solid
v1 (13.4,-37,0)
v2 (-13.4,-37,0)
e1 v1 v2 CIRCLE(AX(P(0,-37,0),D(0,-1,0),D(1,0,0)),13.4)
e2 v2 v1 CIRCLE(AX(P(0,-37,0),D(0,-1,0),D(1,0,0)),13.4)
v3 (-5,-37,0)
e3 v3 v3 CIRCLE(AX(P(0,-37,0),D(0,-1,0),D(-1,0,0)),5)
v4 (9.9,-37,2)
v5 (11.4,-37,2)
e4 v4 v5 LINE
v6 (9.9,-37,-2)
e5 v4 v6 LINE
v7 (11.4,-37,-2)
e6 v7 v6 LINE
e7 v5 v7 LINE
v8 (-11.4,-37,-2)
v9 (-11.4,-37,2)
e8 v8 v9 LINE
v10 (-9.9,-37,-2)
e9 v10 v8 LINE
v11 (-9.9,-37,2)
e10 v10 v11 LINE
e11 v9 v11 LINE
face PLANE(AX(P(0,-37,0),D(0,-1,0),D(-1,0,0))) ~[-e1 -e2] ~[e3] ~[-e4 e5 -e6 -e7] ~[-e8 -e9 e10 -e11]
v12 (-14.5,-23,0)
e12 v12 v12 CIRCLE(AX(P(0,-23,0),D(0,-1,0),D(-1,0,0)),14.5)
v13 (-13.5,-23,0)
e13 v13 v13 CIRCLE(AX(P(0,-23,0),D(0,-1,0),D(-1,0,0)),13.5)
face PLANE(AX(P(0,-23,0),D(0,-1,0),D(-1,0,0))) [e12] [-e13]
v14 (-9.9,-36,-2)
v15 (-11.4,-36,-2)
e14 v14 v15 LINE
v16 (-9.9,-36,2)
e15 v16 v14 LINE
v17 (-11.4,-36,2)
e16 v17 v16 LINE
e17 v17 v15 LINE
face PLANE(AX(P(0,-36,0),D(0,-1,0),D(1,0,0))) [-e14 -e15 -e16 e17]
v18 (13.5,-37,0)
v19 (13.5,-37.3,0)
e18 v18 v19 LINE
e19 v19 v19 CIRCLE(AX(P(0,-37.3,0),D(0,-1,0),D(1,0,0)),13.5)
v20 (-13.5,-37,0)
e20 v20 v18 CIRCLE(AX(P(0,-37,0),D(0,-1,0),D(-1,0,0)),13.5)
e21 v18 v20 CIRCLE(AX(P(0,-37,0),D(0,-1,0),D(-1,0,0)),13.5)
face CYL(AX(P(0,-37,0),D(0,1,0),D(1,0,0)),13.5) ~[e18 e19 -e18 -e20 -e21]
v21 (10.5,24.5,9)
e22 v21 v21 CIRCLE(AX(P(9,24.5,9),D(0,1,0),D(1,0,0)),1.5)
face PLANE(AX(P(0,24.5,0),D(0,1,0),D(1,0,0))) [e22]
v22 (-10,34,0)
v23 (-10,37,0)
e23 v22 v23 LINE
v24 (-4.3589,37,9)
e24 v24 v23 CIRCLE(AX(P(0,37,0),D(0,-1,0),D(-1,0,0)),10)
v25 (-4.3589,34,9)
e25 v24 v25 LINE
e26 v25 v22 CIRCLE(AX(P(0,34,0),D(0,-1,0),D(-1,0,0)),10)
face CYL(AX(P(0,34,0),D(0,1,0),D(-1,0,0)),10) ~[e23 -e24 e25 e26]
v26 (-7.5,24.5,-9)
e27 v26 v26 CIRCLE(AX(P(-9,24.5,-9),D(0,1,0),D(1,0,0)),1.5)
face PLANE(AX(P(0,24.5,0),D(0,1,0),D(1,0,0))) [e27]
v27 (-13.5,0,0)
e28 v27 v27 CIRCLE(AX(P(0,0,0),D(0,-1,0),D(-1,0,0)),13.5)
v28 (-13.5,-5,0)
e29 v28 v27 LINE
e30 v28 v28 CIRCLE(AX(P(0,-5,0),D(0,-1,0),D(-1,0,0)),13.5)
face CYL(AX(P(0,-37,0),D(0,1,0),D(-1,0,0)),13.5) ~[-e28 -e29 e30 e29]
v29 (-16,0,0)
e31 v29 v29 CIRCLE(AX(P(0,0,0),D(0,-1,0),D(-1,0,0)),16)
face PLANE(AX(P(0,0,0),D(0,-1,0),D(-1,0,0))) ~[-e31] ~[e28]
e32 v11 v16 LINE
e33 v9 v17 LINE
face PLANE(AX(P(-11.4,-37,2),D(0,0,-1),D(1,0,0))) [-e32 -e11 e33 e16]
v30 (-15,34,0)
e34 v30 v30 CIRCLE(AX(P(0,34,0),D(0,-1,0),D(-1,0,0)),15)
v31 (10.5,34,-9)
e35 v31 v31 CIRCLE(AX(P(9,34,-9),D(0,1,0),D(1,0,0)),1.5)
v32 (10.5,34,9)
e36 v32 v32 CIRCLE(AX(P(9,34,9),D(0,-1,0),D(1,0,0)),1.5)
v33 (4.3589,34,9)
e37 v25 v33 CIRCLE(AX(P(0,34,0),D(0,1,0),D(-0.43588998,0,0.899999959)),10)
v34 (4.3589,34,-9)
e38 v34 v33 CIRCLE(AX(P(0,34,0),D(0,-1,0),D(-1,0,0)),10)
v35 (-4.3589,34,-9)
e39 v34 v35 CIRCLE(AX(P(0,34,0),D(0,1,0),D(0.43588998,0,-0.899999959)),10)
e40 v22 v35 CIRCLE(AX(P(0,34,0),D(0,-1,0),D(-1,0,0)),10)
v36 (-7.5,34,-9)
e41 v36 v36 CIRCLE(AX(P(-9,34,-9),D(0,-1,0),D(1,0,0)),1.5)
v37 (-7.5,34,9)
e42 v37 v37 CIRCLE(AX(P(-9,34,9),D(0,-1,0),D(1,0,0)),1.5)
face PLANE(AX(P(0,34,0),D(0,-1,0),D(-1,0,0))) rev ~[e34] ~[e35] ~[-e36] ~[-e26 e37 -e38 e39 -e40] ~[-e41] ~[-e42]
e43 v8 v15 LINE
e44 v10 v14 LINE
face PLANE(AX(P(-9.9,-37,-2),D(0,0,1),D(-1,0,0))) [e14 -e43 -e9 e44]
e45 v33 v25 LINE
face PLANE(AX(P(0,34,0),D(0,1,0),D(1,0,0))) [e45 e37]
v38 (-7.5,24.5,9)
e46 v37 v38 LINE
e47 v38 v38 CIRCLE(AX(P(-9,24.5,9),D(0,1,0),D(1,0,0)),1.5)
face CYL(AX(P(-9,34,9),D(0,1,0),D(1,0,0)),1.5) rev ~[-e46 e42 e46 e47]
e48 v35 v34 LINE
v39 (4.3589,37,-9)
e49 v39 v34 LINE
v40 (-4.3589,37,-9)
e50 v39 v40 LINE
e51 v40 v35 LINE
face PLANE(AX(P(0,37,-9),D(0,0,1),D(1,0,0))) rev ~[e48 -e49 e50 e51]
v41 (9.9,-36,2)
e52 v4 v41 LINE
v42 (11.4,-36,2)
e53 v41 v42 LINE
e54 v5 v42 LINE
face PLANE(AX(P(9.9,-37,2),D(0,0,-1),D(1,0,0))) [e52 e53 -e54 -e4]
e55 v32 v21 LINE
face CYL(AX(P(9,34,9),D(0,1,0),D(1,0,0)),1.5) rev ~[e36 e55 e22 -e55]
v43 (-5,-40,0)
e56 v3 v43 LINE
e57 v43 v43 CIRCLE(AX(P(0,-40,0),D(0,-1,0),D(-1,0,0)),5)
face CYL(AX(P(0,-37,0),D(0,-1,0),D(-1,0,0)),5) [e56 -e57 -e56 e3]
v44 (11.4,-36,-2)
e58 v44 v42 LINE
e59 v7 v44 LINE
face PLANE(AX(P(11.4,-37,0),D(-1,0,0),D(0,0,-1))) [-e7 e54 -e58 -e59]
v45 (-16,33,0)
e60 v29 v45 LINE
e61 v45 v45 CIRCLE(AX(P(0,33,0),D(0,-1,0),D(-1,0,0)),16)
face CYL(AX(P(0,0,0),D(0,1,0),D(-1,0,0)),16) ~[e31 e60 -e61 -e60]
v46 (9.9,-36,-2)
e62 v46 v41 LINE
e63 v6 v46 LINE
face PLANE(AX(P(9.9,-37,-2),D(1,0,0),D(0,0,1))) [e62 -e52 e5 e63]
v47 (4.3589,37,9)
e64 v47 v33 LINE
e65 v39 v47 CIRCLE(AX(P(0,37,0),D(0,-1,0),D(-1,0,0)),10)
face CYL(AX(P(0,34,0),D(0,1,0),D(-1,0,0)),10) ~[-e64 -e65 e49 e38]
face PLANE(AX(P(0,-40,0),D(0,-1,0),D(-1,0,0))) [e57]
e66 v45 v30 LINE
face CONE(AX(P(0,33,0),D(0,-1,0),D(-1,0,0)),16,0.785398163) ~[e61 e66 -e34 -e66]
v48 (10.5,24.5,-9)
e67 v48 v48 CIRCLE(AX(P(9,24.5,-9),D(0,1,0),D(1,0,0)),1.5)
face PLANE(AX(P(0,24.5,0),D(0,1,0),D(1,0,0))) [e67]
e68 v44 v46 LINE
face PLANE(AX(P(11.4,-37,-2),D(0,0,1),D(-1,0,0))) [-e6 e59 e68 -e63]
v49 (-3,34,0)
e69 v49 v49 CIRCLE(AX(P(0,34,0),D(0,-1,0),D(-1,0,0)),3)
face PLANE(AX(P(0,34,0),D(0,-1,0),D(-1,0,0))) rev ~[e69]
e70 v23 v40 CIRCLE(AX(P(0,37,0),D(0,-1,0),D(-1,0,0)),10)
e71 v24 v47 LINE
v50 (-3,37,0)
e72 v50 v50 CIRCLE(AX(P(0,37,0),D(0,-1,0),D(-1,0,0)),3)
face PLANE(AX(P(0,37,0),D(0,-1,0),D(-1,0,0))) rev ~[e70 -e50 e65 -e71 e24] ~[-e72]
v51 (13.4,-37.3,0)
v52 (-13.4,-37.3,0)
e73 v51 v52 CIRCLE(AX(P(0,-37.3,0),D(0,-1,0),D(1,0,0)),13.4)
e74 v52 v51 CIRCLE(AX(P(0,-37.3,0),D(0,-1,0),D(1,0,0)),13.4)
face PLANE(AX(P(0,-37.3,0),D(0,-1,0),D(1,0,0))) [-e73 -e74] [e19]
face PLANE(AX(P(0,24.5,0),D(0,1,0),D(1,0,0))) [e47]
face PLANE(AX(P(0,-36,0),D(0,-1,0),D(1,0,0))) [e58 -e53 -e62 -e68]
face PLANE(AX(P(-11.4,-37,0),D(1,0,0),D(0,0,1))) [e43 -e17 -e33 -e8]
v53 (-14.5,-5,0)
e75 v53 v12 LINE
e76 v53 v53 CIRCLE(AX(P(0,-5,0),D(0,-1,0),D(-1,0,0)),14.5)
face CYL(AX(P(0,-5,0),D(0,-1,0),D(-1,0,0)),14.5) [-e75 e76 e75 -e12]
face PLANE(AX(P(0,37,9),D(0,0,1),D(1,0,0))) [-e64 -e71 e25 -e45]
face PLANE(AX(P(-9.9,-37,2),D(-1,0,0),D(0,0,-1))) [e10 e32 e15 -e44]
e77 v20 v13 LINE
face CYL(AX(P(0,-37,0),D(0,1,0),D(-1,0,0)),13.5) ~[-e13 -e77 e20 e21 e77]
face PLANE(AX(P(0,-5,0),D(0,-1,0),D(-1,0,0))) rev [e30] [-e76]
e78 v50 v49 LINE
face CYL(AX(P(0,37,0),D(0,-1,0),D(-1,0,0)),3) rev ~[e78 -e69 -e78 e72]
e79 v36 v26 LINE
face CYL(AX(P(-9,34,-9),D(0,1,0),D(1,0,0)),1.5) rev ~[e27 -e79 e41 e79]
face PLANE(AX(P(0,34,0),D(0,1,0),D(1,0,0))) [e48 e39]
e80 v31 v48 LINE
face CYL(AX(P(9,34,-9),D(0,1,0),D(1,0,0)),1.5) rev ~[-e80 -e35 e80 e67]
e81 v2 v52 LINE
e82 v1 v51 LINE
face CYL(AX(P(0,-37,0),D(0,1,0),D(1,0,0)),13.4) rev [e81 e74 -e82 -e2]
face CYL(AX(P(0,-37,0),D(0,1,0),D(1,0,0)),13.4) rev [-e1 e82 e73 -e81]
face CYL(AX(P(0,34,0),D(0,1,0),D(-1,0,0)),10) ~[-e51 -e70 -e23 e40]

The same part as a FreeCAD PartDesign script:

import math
import FreeCAD as App
import Part
import Sketcher
Q = App.Units.Quantity


def edges_at(feature, points):
    """Names of the edges that pass closest to the given points."""
    edges = feature.Shape.Edges
    near = lambda p: min(range(len(edges)), key=lambda i: edges[i].distToShape(Part.Vertex(*p))[0])
    return sorted({f"Edge{near(p) + 1}" for p in points})

doc = App.newDocument("Part")
body = doc.addObject("PartDesign::Body", "Body")

# Sketch on XY plane
sketch1 = body.newObject("Sketcher::SketchObject", "Sketch")
sketch1.AttachmentSupport = (doc.getObject("XY_Plane"), [""])
sketch1.MapMode = "FlatFace"
sketch1.addGeometry([
    Part.LineSegment(App.Vector(0, 34, 0), App.Vector(-3, 34, 0)),  # 0
    Part.LineSegment(App.Vector(-3, 34, 0), App.Vector(-3, 37, 0)),  # 1
    Part.LineSegment(App.Vector(-3, 37, 0), App.Vector(-10, 37, 0)),  # 2
    Part.LineSegment(App.Vector(-10, 37, 0), App.Vector(-10, 34, 0)),  # 3
    Part.LineSegment(App.Vector(-10, 34, 0), App.Vector(-16, 34, 0)),  # 4
    Part.LineSegment(App.Vector(-16, 34, 0), App.Vector(-16, 0, 0)),  # 5
    Part.LineSegment(App.Vector(-16, 0, 0), App.Vector(-13.5, 0, 0)),  # 6
    Part.LineSegment(App.Vector(-13.5, 0, 0), App.Vector(-13.5, -5, 0)),  # 7
    Part.LineSegment(App.Vector(-13.5, -5, 0), App.Vector(-14.5, -5, 0)),  # 8
    Part.LineSegment(App.Vector(-14.5, -5, 0), App.Vector(-14.5, -23, 0)),  # 9
    Part.LineSegment(App.Vector(-14.5, -23, 0), App.Vector(-13.5, -23, 0)),  # 10
    Part.LineSegment(App.Vector(-13.5, -23, 0), App.Vector(-13.5, -37, 0)),  # 11
    Part.LineSegment(App.Vector(-13.5, -37, 0), App.Vector(-5, -37, 0)),  # 12
    Part.LineSegment(App.Vector(-5, -37, 0), App.Vector(-5, -40, 0)),  # 13
    Part.LineSegment(App.Vector(-5, -40, 0), App.Vector(0, -40, 0)),  # 14
    Part.LineSegment(App.Vector(0, -40, 0), App.Vector(0, 34, 0)),  # 15
], False)
sketch1.addConstraint([
    Sketcher.Constraint("Coincident", 0, 2, 1, 1),
    Sketcher.Constraint("Coincident", 1, 2, 2, 1),
    Sketcher.Constraint("Coincident", 2, 2, 3, 1),
    Sketcher.Constraint("Coincident", 3, 2, 4, 1),
    Sketcher.Constraint("Coincident", 4, 2, 5, 1),
    Sketcher.Constraint("Coincident", 5, 2, 6, 1),
    Sketcher.Constraint("Coincident", 6, 2, 7, 1),
    Sketcher.Constraint("Coincident", 7, 2, 8, 1),
    Sketcher.Constraint("Coincident", 8, 2, 9, 1),
    Sketcher.Constraint("Coincident", 9, 2, 10, 1),
    Sketcher.Constraint("Coincident", 10, 2, 11, 1),
    Sketcher.Constraint("Coincident", 11, 2, 12, 1),
    Sketcher.Constraint("Coincident", 12, 2, 13, 1),
    Sketcher.Constraint("Coincident", 13, 2, 14, 1),
    Sketcher.Constraint("Coincident", 14, 2, 15, 1),
    Sketcher.Constraint("Coincident", 15, 2, 0, 1),
    Sketcher.Constraint("Horizontal", 0),
    Sketcher.Constraint("Vertical", 1),
    Sketcher.Constraint("Horizontal", 2),
    Sketcher.Constraint("Vertical", 3),
    Sketcher.Constraint("Horizontal", 4),
    Sketcher.Constraint("Vertical", 5),
    Sketcher.Constraint("Horizontal", 6),
    Sketcher.Constraint("Vertical", 7),
    Sketcher.Constraint("Horizontal", 8),
    Sketcher.Constraint("Vertical", 9),
    Sketcher.Constraint("Horizontal", 10),
    Sketcher.Constraint("Vertical", 11),
    Sketcher.Constraint("Horizontal", 12),
    Sketcher.Constraint("Vertical", 13),
    Sketcher.Constraint("Horizontal", 14),
    Sketcher.Constraint("Vertical", 15),
    Sketcher.Constraint("PointOnObject", 5, 2, -1),
    Sketcher.Constraint("PointOnObject", 14, 2, -2),
    Sketcher.Constraint("Horizontal", 0, 2, 3, 2),
    Sketcher.Constraint("Vertical", 7, 2, 10, 2),
    Sketcher.Constraint("Equal", 0, 1),
    Sketcher.Constraint("Equal", 14, 7),
    Sketcher.Constraint("Equal", 3, 13),
    Sketcher.Constraint("DistanceX", 0, 2, 0, 1, Q("3 mm")),
    Sketcher.Constraint("DistanceX", 8, 2, 8, 1, Q("1 mm")),
    Sketcher.Constraint("DistanceX", 14, 1, 14, 2, Q("5 mm")),
    Sketcher.Constraint("DistanceY", 5, 2, 5, 1, Q("34 mm")),
    Sketcher.Constraint("DistanceY", 11, 2, 11, 1, Q("14 mm")),
    Sketcher.Constraint("DistanceX", 2, 2, -1, 1, Q("10 mm")),
    Sketcher.Constraint("DistanceX", 4, 2, -1, 1, Q("16 mm")),
    Sketcher.Constraint("DistanceY", 11, 2, -1, 1, Q("37 mm")),
    Sketcher.Constraint("DistanceX", 6, 2, -1, 1, Q("13.5 mm")),
])
revolution = body.newObject("PartDesign::Revolution", "Revolution")
revolution.Profile = sketch1
revolution.ReferenceAxis = (sketch1, ["V_Axis"])
revolution.Angle = 360
doc.recompute()

chamfer = body.newObject("PartDesign::Chamfer", "Chamfer")
chamfer.Base = (revolution, edges_at(revolution, [(16, 34, 0)]))
chamfer.Size = 1

# Sketch on XZ plane
sketch2 = body.newObject("Sketcher::SketchObject", "Sketch001")
sketch2.AttachmentSupport = (doc.getObject("XZ_Plane"), [""])
sketch2.MapMode = "FlatFace"
sketch2.AttachmentOffset = App.Placement(App.Vector(0, 0, 37), App.Rotation())
sketch2.addGeometry([
    Part.Circle(App.Vector(0, 0, 0), App.Vector(0, 0, 1), 14),
    Part.Circle(App.Vector(0, 0, 0), App.Vector(0, 0, 1), 13),
], False)
sketch2.addConstraint([
    Sketcher.Constraint("Coincident", 0, 3, -1, 1),
    Sketcher.Constraint("Coincident", 1, 3, -1, 1),
    Sketcher.Constraint("Diameter", 0, Q("27 mm")),
    Sketcher.Constraint("Diameter", 1, Q("26.8 mm")),
])
pad1 = body.newObject("PartDesign::Pad", "Pad")
pad1.Profile = sketch2
pad1.Length = 0.3

# Sketch on XZ plane
sketch3 = body.newObject("Sketcher::SketchObject", "Sketch002")
sketch3.AttachmentSupport = (doc.getObject("XZ_Plane"), [""])
sketch3.MapMode = "FlatFace"
sketch3.AttachmentOffset = App.Placement(App.Vector(0, 0, 37), App.Rotation())
sketch3.addGeometry([
    Part.LineSegment(App.Vector(11.4, -2, 0), App.Vector(11.4, 2, 0)),  # 0
    Part.LineSegment(App.Vector(11.4, 2, 0), App.Vector(9.9, 2, 0)),  # 1
    Part.LineSegment(App.Vector(9.9, 2, 0), App.Vector(9.9, -2, 0)),  # 2
    Part.LineSegment(App.Vector(9.9, -2, 0), App.Vector(11.4, -2, 0)),  # 3
    Part.LineSegment(App.Vector(-11.4, 2, 0), App.Vector(-11.4, -2, 0)),  # 4
    Part.LineSegment(App.Vector(-11.4, -2, 0), App.Vector(-9.9, -2, 0)),  # 5
    Part.LineSegment(App.Vector(-9.9, -2, 0), App.Vector(-9.9, 2, 0)),  # 6
    Part.LineSegment(App.Vector(-9.9, 2, 0), App.Vector(-11.4, 2, 0)),  # 7
], False)
sketch3.addConstraint([
    Sketcher.Constraint("Coincident", 0, 2, 1, 1),
    Sketcher.Constraint("Coincident", 1, 2, 2, 1),
    Sketcher.Constraint("Coincident", 2, 2, 3, 1),
    Sketcher.Constraint("Coincident", 3, 2, 0, 1),
    Sketcher.Constraint("Coincident", 4, 2, 5, 1),
    Sketcher.Constraint("Coincident", 5, 2, 6, 1),
    Sketcher.Constraint("Coincident", 6, 2, 7, 1),
    Sketcher.Constraint("Coincident", 7, 2, 4, 1),
    Sketcher.Constraint("Vertical", 0),
    Sketcher.Constraint("Horizontal", 1),
    Sketcher.Constraint("Vertical", 2),
    Sketcher.Constraint("Horizontal", 3),
    Sketcher.Constraint("Vertical", 4),
    Sketcher.Constraint("Horizontal", 5),
    Sketcher.Constraint("Vertical", 6),
    Sketcher.Constraint("Horizontal", 7),
    Sketcher.Constraint("Symmetric", 0, 2, 4, 2, -1, 1),
    Sketcher.Constraint("Symmetric", 2, 2, 6, 2, -1, 1),
    Sketcher.Constraint("Horizontal", 3, 2, 4, 2),
    Sketcher.Constraint("DistanceY", 0, 1, 0, 2, Q("4 mm")),
    Sketcher.Constraint("DistanceX", 1, 2, 1, 1, Q("1.5 mm")),
    Sketcher.Constraint("DistanceX", -1, 1, 0, 2, Q("11.4 mm")),
])
pocket1 = body.newObject("PartDesign::Pocket", "Pocket")
pocket1.Profile = sketch3
pocket1.Length = 1

# Sketch on XZ plane
sketch4 = body.newObject("Sketcher::SketchObject", "Sketch003")
sketch4.AttachmentSupport = (doc.getObject("XZ_Plane"), [""])
sketch4.MapMode = "FlatFace"
sketch4.AttachmentOffset = App.Placement(App.Vector(0, 0, -34), App.Rotation())
sketch4.addGeometry([
    Part.Circle(App.Vector(-9, 9, 0), App.Vector(0, 0, 1), 1.5),
    Part.Circle(App.Vector(-9, -9, 0), App.Vector(0, 0, 1), 1.5),
    Part.Circle(App.Vector(9, 9, 0), App.Vector(0, 0, 1), 1.5),
    Part.Circle(App.Vector(9, -9, 0), App.Vector(0, 0, 1), 1.5),
], False)
sketch4.addConstraint([
    Sketcher.Constraint("Equal", 0, 1),
    Sketcher.Constraint("Equal", 1, 2),
    Sketcher.Constraint("Equal", 2, 3),
    Sketcher.Constraint("Symmetric", 1, 3, 2, 3, -1, 1),
    Sketcher.Constraint("Symmetric", 0, 3, 3, 3, -1, 1),
    Sketcher.Constraint("Symmetric", 0, 3, 2, 3, -2),
    Sketcher.Constraint("Diameter", 0, Q("3 mm")),
    Sketcher.Constraint("DistanceX", 0, 3, -1, 1, Q("9 mm")),
    Sketcher.Constraint("DistanceY", -1, 1, 0, 3, Q("9 mm")),
])
pocket2 = body.newObject("PartDesign::Pocket", "Pocket001")
pocket2.Profile = sketch4
pocket2.Length = 9.5
pocket2.Reversed = True

# Sketch on XZ plane
sketch5 = body.newObject("Sketcher::SketchObject", "Sketch004")
sketch5.AttachmentSupport = (doc.getObject("XZ_Plane"), [""])
sketch5.MapMode = "FlatFace"
sketch5.AttachmentOffset = App.Placement(App.Vector(0, 0, -37), App.Rotation())
sketch5.addGeometry([
    Part.ArcOfCircle(Part.Circle(App.Vector(0, 0, 0), App.Vector(0, 0, 1), 10), math.radians(-116), math.radians(-64)),
    Part.LineSegment(App.Vector(-4, -9, 0), App.Vector(4, -9, 0)),
    Part.LineSegment(App.Vector(4, 9, 0), App.Vector(-4, 9, 0)),
    Part.ArcOfCircle(Part.Circle(App.Vector(0, 0, 0), App.Vector(0, 0, 1), 10), math.radians(64), math.radians(116)),
], False)
sketch5.addConstraint([
    Sketcher.Constraint("Coincident", 0, 1, 1, 1),
    Sketcher.Constraint("Coincident", 1, 2, 0, 2),
    Sketcher.Constraint("Coincident", 2, 1, 3, 1),
    Sketcher.Constraint("Coincident", 3, 2, 2, 2),
    Sketcher.Constraint("Horizontal", 1),
    Sketcher.Constraint("Horizontal", 2),
    Sketcher.Constraint("Coincident", 0, 3, -1, 1),
    Sketcher.Constraint("Coincident", 3, 3, -1, 1),
    Sketcher.Constraint("Equal", 0, 3),
    Sketcher.Constraint("Vertical", 1, 2, 2, 1),
    Sketcher.Constraint("Radius", 0, Q("10 mm")),
    Sketcher.Constraint("DistanceY", 0, 1, -1, 1, Q("9 mm")),
])
pocket3 = body.newObject("PartDesign::Pocket", "Pocket002")
pocket3.Profile = sketch5
pocket3.Length = 3
pocket3.Reversed = True

doc.recompute()
